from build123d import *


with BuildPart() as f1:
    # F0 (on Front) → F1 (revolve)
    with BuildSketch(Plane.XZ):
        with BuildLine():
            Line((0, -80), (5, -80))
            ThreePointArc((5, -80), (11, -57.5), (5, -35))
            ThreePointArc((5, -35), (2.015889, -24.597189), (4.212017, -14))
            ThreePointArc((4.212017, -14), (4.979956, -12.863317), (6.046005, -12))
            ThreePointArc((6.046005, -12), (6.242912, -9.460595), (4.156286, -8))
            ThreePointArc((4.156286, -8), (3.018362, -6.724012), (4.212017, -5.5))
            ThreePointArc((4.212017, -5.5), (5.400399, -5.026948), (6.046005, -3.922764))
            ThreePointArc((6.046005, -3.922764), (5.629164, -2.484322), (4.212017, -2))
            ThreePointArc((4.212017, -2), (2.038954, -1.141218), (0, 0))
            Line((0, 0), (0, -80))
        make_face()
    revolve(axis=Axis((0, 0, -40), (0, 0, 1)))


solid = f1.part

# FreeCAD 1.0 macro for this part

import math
import FreeCAD as App
import Part
import Sketcher

doc = App.newDocument("Part")
body = doc.addObject("PartDesign::Body", "Body")

# Sketch on XZ plane
sketch1 = body.newObject("Sketcher::SketchObject", "Sketch")
sketch1.AttachmentSupport = (doc.getObject("XZ_Plane"), [""])
sketch1.MapMode = "FlatFace"
sketch1.addGeometry([
    Part.LineSegment(App.Vector(0, -80, 0), App.Vector(5, -80, 0)),  # 0
    Part.ArcOfCircle(Part.Circle(App.Vector(-34.2, -57.5, 0), App.Vector(0, 0, 1), 45.2), math.radians(-30), math.radians(30)),  # 1
    Part.ArcOfCircle(Part.Circle(App.Vector(24.6, -23.7, 0), App.Vector(0, 0, 1), 22.6), math.radians(154), math.radians(210)),  # 2
    Part.ArcOfCircle(Part.Circle(App.Vector(8.4, -16, 0), App.Vector(0, 0, 1), 4.7), math.radians(121), math.radians(154)),  # 3
    Part.ArcOfCircle(Part.Circle(App.Vector(3.9, -10.6, 0), App.Vector(0, 0, 1), 2.6), math.radians(-34), math.radians(85)),  # 4
    Part.ArcOfCircle(Part.Circle(App.Vector(4.3, -6.8, 0), App.Vector(0, 0, 1), 1.3), math.radians(93), math.radians(265)),  # 5
    Part.ArcOfCircle(Part.Circle(App.Vector(4.1, -3.5, 0), App.Vector(0, 0, 1), 2), math.radians(-87), math.radians(-11)),  # 6
    Part.ArcOfCircle(Part.Circle(App.Vector(4.5, -3.6, 0), App.Vector(0, 0, 1), 1.6), math.radians(-11), math.radians(99)),  # 7
    Part.ArcOfCircle(Part.Circle(App.Vector(9.5, 14.6, 0), App.Vector(0, 0, 1), 17.5), math.radians(-123.07), math.radians(-107.73)),  # 8
    Part.LineSegment(App.Vector(0, 0, 0), App.Vector(0, -80, 0)),  # 9
], False)
sketch1.addConstraint([
    Sketcher.Constraint("Coincident", 0, 2, 1, 1),
    Sketcher.Constraint("Tangent", 1, 2, 2, 2),
    Sketcher.Constraint("Tangent", 2, 1, 3, 2),
    Sketcher.Constraint("Coincident", 3, 1, 4, 1),
    Sketcher.Constraint("Tangent", 4, 2, 5, 2),
    Sketcher.Constraint("Tangent", 5, 1, 6, 1),
    Sketcher.Constraint("Tangent", 6, 2, 7, 1),
    Sketcher.Constraint("Coincident", 7, 2, 8, 2),
    Sketcher.Constraint("Coincident", 8, 1, 9, 1),
    Sketcher.Constraint("Coincident", 9, 2, 0, 1),
    Sketcher.Constraint("Horizontal", 0),
    Sketcher.Constraint("Vertical", 9),
    Sketcher.Constraint("Coincident", 8, 1, -1, 1),
    Sketcher.Constraint("Vertical", 0, 2, 1, 2),
    Sketcher.Constraint("Vertical", 2, 1, 5, 1),
    Sketcher.Constraint("Vertical", 3, 1, 6, 2),
    Sketcher.Constraint("Vertical", 5, 1, 7, 2),
    Sketcher.Constraint("DistanceX", 0, 1, 0, 2, 5.0),
    Sketcher.Constraint("DistanceY", 9, 2, 9, 1, 80.0),
    Sketcher.Constraint("DistanceY", 1, 2, -1, 1, 35.0),
    Sketcher.Constraint("DistanceY", 2, 1, -1, 1, 14.0),
    Sketcher.Constraint("DistanceY", 3, 1, -1, 1, 12.0),
    Sketcher.Constraint("DistanceY", 4, 2, -1, 1, 8.0),
    Sketcher.Constraint("DistanceY", 7, 2, -1, 1, 2.0),
    Sketcher.Constraint("DistanceY", 5, 1, -1, 1, 5.5),
    Sketcher.Constraint("Radius", 1, 45.1875),
    Sketcher.Constraint("DistanceY", 2, 3, -1, 1, 23.75),
    Sketcher.Constraint("Radius", 7, 1.622479),
    Sketcher.Constraint("Radius", 8, 17.462219),
    Sketcher.Constraint("Radius", 3, 4.652417),
    Sketcher.Constraint("Radius", 4, 2.568697),
    Sketcher.Constraint("Radius", 6, 1.965375),
])
revolution = body.newObject("PartDesign::Revolution", "Revolution")
revolution.Profile = sketch1
revolution.ReferenceAxis = (sketch1, ["V_Axis"])
revolution.Angle = 360

doc.recompute()
